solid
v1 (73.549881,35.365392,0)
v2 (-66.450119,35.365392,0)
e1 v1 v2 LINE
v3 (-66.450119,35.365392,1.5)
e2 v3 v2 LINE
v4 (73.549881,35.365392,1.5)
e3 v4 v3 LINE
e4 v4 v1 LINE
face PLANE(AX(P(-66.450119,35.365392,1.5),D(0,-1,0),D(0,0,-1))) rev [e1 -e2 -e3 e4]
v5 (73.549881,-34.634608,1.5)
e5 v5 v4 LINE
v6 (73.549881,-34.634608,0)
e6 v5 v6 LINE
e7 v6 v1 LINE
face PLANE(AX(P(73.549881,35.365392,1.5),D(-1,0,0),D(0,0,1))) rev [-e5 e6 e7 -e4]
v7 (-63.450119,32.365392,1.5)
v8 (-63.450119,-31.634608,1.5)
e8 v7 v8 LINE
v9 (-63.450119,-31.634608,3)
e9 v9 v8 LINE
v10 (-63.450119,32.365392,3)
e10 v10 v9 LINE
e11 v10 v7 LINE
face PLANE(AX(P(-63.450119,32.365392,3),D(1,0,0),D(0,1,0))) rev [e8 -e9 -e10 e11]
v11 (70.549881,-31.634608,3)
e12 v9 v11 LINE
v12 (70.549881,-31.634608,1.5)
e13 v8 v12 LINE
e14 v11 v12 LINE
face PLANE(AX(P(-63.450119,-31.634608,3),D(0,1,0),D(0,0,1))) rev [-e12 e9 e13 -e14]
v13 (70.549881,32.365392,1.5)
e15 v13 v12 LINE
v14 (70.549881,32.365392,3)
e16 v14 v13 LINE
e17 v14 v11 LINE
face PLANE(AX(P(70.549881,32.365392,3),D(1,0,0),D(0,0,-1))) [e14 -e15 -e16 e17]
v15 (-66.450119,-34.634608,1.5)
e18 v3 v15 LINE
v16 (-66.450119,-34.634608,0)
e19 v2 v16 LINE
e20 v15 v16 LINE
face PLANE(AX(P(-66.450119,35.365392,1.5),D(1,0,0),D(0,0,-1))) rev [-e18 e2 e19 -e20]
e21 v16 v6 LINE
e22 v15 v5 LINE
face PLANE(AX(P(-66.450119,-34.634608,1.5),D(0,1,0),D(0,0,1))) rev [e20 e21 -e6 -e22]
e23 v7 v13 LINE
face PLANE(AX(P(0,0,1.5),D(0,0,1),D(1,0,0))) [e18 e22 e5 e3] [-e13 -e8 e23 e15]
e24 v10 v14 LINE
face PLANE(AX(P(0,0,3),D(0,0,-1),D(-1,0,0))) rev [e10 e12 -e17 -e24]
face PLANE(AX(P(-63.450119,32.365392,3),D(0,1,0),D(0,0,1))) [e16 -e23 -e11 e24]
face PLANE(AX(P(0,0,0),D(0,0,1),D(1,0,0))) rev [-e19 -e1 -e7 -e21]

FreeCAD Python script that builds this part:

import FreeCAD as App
import Part
import Sketcher

V = App.Vector
Q = App.Units.Quantity


def add_polygon(sketch, points):
    """Adds a closed chain of lines whose ends are joined by coincident constraints."""
    first, n = sketch.GeometryCount, len(points)
    for a, b in zip(points, points[1:] + points[:1]):
        sketch.addGeometry(Part.LineSegment(App.Vector(*a, 0), App.Vector(*b, 0)), False)
    for i in range(n):
        sketch.addConstraint(Sketcher.Constraint("Coincident", first + i, 2, first + (i + 1) % n, 1))

doc = App.newDocument("Part")
body = doc.addObject("PartDesign::Body", "Body")

# Sketch on XY plane
sketch1 = body.newObject("Sketcher::SketchObject", "Sketch")
sketch1.AttachmentSupport = (doc.getObject("XY_Plane"), [""])
sketch1.MapMode = "FlatFace"
add_polygon(sketch1, [(-66, 35), (-66, -35), (74, -35), (74, 35)])  # lines 0-3
sketch1.addConstraint(Sketcher.Constraint("Vertical", 0))
sketch1.addConstraint(Sketcher.Constraint("Horizontal", 1))
sketch1.addConstraint(Sketcher.Constraint("Vertical", 2))
sketch1.addConstraint(Sketcher.Constraint("Horizontal", 3))
sketch1.addConstraint(Sketcher.Constraint("DistanceX", 1, 1, 1, 2, Q("140 mm")))
sketch1.addConstraint(Sketcher.Constraint("DistanceY", 0, 2, 0, 1, Q("70 mm")))
sketch1.addConstraint(Sketcher.Constraint("DistanceX", 0, 2, -1, 1, Q("66.450119 mm")))
sketch1.addConstraint(Sketcher.Constraint("DistanceY", 0, 2, -1, 1, Q("34.634608 mm")))
pad1 = body.newObject("PartDesign::Pad", "Pad")
pad1.Profile = sketch1
pad1.Length = 1.5

# Sketch on XY plane
sketch2 = body.newObject("Sketcher::SketchObject", "Sketch001")
sketch2.AttachmentSupport = (doc.getObject("XY_Plane"), [""])
sketch2.MapMode = "FlatFace"
sketch2.AttachmentOffset = App.Placement(V(0, 0, 1.5), App.Rotation())
add_polygon(sketch2, [(-63, 32), (-63, -32), (71, -32), (71, 32)])  # lines 0-3
sketch2.addConstraint(Sketcher.Constraint("Vertical", 0))
sketch2.addConstraint(Sketcher.Constraint("Horizontal", 1))
sketch2.addConstraint(Sketcher.Constraint("Vertical", 2))
sketch2.addConstraint(Sketcher.Constraint("Horizontal", 3))
sketch2.addConstraint(Sketcher.Constraint("DistanceX", 1, 1, 1, 2, Q("134 mm")))
sketch2.addConstraint(Sketcher.Constraint("DistanceY", 0, 2, 0, 1, Q("64 mm")))
sketch2.addConstraint(Sketcher.Constraint("DistanceX", 0, 2, -1, 1, Q("63.450119 mm")))
sketch2.addConstraint(Sketcher.Constraint("DistanceY", 0, 2, -1, 1, Q("31.634608 mm")))
pad2 = body.newObject("PartDesign::Pad", "Pad001")
pad2.Profile = sketch2
pad2.Length = 1.5

doc.recompute()
